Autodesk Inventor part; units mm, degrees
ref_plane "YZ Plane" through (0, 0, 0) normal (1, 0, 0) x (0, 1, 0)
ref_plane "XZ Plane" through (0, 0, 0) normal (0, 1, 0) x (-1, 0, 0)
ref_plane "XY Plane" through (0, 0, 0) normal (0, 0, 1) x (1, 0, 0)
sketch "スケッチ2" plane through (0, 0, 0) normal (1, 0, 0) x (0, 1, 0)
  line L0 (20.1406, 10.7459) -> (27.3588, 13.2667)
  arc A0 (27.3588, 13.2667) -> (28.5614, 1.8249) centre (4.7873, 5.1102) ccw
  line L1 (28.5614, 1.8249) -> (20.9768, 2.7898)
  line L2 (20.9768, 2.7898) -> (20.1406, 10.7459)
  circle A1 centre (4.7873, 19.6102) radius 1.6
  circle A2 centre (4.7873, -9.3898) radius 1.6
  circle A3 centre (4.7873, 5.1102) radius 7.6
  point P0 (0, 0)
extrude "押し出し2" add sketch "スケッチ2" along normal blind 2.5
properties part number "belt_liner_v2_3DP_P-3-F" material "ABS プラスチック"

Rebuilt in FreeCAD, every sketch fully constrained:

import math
import FreeCAD as App
import Part
import Sketcher

V = App.Vector
Q = App.Units.Quantity

doc = App.newDocument("Part")
params = doc.addObject("Spreadsheet::Sheet", "Params")
for row, (alias, value) in enumerate([
    ("sketch1_radius", "24 mm"),
    ("sketch1_diameter", "3.2 mm"),
    ("sketch1_diameter2", "15.2 mm"),
    ("sketch1_length", "8 mm"),
    ("pad1_length", "2.5 mm"),
], start=1):
    params.set(f"A{row}", alias)
    params.set(f"B{row}", "=" + value)
    params.setAlias(f"B{row}", alias)

body = doc.addObject("PartDesign::Body", "Body")

sketch1 = doc.addObject("Sketcher::SketchObject", "Sketch")
body.addObject(sketch1)
sketch1.AttachmentSupport = (doc.YZ_Plane, [""])
sketch1.MapMode = "FlatFace"
sketch1.addGeometry(Part.LineSegment(V(21, 2.8, 0), V(20.1, 10.7, 0)), False)
sketch1.addGeometry(Part.LineSegment(V(20.1, 10.7, 0), V(27.4, 13.3, 0)), False)
sketch1.addGeometry(Part.ArcOfCircle(Part.Circle(V(4.8, 5.1, 0), V(0, 0, 1), 24), math.radians(20), math.radians(352)), False)
sketch1.addGeometry(Part.LineSegment(V(28.6, 1.8, 0), V(21, 2.8, 0)), False)
sketch1.addGeometry(Part.Circle(V(4.8, -9.4, 0), V(0, 0, 1), 1.6), False)
sketch1.addGeometry(Part.Circle(V(4.8, 5.1, 0), V(0, 0, 1), 7.6), False)
sketch1.addGeometry(Part.Circle(V(4.8, 19.6, 0), V(0, 0, 1), 1.6), False)
sketch1.addConstraint(Sketcher.Constraint("Coincident", 0, 2, 1, 1))
sketch1.addConstraint(Sketcher.Constraint("Coincident", 1, 2, 2, 1))
sketch1.addConstraint(Sketcher.Constraint("Coincident", 2, 2, 3, 1))
sketch1.addConstraint(Sketcher.Constraint("Coincident", 3, 2, 0, 1))
sketch1.addConstraint(Sketcher.Constraint("Coincident", 5, 3, 2, 3))
sketch1.addConstraint(Sketcher.Constraint("Equal", 4, 6))
sketch1.addConstraint(Sketcher.Constraint("Vertical", 2, 3, 4, 3))
sketch1.addConstraint(Sketcher.Constraint("Vertical", 5, 3, 6, 3))
sketch1.addConstraint(Sketcher.Constraint("Equal", 1, 3))
sketch1.addConstraint(Sketcher.Constraint("Radius", 2, Q("24 mm")))
sketch1.addConstraint(Sketcher.Constraint("Diameter", 4, Q("3.2 mm")))
sketch1.addConstraint(Sketcher.Constraint("Diameter", 5, Q("15.2 mm")))
sketch1.addConstraint(Sketcher.Constraint("Angle", 0, Q("95.9999 deg")))
sketch1.addConstraint(Sketcher.Constraint("Distance", 0, Q("8 mm")))
sketch1.addConstraint(Sketcher.Constraint("DistanceY", 4, 3, 6, 3, Q("29 mm")))
sketch1.addConstraint(Sketcher.Constraint("Angle", 1, Q("19.2506 deg")))
sketch1.addConstraint(Sketcher.Constraint("Angle", 3, Q("172.7499 deg")))
sketch1.addConstraint(Sketcher.Constraint("DistanceY", 4, 3, 2, 3, Q("14.5 mm")))
sketch1.addConstraint(Sketcher.Constraint("DistanceY", -1, 1, 0, 2, Q("10.746 mm")))
sketch1.addConstraint(Sketcher.Constraint("DistanceY", -1, 1, 2, 2, Q("1.825 mm")))
sketch1.addConstraint(Sketcher.Constraint("DistanceX", -1, 1, 2, 3, Q("4.7873 mm")))
sketch1.setExpression("Constraints[9]", "Params.sketch1_radius")
sketch1.setExpression("Constraints[10]", "Params.sketch1_diameter")
sketch1.setExpression("Constraints[11]", "Params.sketch1_diameter2")
sketch1.setExpression("Constraints[13]", "Params.sketch1_length")
pad1 = doc.addObject("PartDesign::Pad", "Pad")
body.addObject(pad1)
pad1.Profile = sketch1
pad1.setExpression("Length", "Params.pad1_length")

doc.recompute()
